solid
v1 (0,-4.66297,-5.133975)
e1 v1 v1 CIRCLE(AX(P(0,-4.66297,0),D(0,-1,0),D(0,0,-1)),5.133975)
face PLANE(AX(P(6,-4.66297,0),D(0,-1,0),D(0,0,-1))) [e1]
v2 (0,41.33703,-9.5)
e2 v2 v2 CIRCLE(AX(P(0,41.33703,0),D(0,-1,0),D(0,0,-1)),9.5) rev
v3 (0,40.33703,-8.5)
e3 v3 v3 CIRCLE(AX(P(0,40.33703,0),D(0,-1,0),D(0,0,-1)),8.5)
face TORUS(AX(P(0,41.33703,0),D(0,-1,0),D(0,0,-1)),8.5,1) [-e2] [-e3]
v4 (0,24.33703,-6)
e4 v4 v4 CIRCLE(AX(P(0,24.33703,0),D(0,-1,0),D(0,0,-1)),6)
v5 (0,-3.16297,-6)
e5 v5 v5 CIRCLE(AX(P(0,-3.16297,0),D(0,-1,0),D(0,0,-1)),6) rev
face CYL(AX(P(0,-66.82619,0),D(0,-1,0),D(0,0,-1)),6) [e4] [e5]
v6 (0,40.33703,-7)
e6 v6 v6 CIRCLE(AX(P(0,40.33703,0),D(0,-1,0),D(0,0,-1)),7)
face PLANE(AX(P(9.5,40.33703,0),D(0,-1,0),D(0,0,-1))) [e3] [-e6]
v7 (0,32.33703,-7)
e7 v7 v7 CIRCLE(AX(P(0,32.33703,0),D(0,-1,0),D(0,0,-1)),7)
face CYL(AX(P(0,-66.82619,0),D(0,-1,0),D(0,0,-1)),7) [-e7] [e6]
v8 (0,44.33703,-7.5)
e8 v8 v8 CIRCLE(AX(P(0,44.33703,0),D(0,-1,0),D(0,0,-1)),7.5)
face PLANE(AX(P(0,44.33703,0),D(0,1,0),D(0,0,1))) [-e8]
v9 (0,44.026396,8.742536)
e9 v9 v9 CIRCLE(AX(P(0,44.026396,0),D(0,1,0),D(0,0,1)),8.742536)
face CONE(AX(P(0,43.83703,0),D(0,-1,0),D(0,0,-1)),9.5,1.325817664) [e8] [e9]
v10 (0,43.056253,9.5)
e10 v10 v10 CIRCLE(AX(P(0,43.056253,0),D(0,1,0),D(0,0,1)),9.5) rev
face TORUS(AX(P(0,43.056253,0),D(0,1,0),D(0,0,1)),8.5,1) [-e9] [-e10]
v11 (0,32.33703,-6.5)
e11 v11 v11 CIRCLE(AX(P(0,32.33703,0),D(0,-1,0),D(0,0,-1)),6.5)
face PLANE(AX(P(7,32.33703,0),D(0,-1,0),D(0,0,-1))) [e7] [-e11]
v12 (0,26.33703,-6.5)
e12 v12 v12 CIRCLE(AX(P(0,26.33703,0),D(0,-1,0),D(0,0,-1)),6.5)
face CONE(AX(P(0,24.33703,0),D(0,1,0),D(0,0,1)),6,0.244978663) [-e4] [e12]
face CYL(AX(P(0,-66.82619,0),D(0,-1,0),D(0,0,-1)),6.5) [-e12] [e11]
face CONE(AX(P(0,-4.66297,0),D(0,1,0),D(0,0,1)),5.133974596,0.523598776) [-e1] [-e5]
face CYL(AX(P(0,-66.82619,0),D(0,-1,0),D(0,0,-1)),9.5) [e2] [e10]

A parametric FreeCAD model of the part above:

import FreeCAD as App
import Part
import Sketcher
from FreeCAD import Vector
Q = App.Units.Quantity


def edges_at(feature, points):
    """Names of the edges that pass closest to the given points."""
    edges = feature.Shape.Edges
    near = lambda p: min(range(len(edges)), key=lambda i: edges[i].distToShape(Part.Vertex(*p))[0])
    return sorted({f"Edge{near(p) + 1}" for p in points})

doc = App.newDocument("Part")
body = doc.addObject("PartDesign::Body", "Body")

# Sketch on XY plane
sketch1 = body.newObject("Sketcher::SketchObject", "Sketch")
sketch1.AttachmentSupport = (doc.getObject("XY_Plane"), [""])
sketch1.MapMode = "FlatFace"
sketch1.addGeometry(Part.LineSegment(Vector(7.5, 44.3, 0), Vector(0, 44.3, 0)), False)
sketch1.addGeometry(Part.LineSegment(Vector(0, 44.3, 0), Vector(0, -4.7, 0)), False)
sketch1.addGeometry(Part.LineSegment(Vector(0, -4.7, 0), Vector(6, -4.7, 0)), False)
sketch1.addGeometry(Part.LineSegment(Vector(6, -4.7, 0), Vector(6, 24.3, 0)), False)
sketch1.addGeometry(Part.LineSegment(Vector(6, 24.3, 0), Vector(6.5, 26.3, 0)), False)
sketch1.addGeometry(Part.LineSegment(Vector(6.5, 26.3, 0), Vector(6.5, 32.3, 0)), False)
sketch1.addGeometry(Part.LineSegment(Vector(6.5, 32.3, 0), Vector(7, 32.3, 0)), False)
sketch1.addGeometry(Part.LineSegment(Vector(7, 32.3, 0), Vector(7, 40.3, 0)), False)
sketch1.addGeometry(Part.LineSegment(Vector(7, 40.3, 0), Vector(9.5, 40.3, 0)), False)
sketch1.addGeometry(Part.LineSegment(Vector(9.5, 40.3, 0), Vector(9.5, 43.8, 0)), False)
sketch1.addGeometry(Part.LineSegment(Vector(9.5, 43.8, 0), Vector(7.5, 44.3, 0)), False)
sketch1.addConstraint(Sketcher.Constraint("Coincident", 0, 2, 1, 1))
sketch1.addConstraint(Sketcher.Constraint("Coincident", 1, 2, 2, 1))
sketch1.addConstraint(Sketcher.Constraint("Coincident", 2, 2, 3, 1))
sketch1.addConstraint(Sketcher.Constraint("Coincident", 3, 2, 4, 1))
sketch1.addConstraint(Sketcher.Constraint("Coincident", 4, 2, 5, 1))
sketch1.addConstraint(Sketcher.Constraint("Coincident", 5, 2, 6, 1))
sketch1.addConstraint(Sketcher.Constraint("Coincident", 6, 2, 7, 1))
sketch1.addConstraint(Sketcher.Constraint("Coincident", 7, 2, 8, 1))
sketch1.addConstraint(Sketcher.Constraint("Coincident", 8, 2, 9, 1))
sketch1.addConstraint(Sketcher.Constraint("Coincident", 9, 2, 10, 1))
sketch1.addConstraint(Sketcher.Constraint("Coincident", 10, 2, 0, 1))
sketch1.addConstraint(Sketcher.Constraint("Horizontal", 0))
sketch1.addConstraint(Sketcher.Constraint("Vertical", 1))
sketch1.addConstraint(Sketcher.Constraint("Horizontal", 2))
sketch1.addConstraint(Sketcher.Constraint("Vertical", 3))
sketch1.addConstraint(Sketcher.Constraint("Vertical", 5))
sketch1.addConstraint(Sketcher.Constraint("Horizontal", 6))
sketch1.addConstraint(Sketcher.Constraint("Vertical", 7))
sketch1.addConstraint(Sketcher.Constraint("Horizontal", 8))
sketch1.addConstraint(Sketcher.Constraint("Vertical", 9))
sketch1.addConstraint(Sketcher.Constraint("PointOnObject", 0, 2, -2))
sketch1.addConstraint(Sketcher.Constraint("Perpendicular", 4, 10))
sketch1.addConstraint(Sketcher.Constraint("Equal", 2, 5))
sketch1.addConstraint(Sketcher.Constraint("Equal", 4, 10))
sketch1.addConstraint(Sketcher.Constraint("DistanceX", 2, 1, 2, 2, Q("6 mm")))
sketch1.addConstraint(Sketcher.Constraint("DistanceY", 1, 2, 1, 1, Q("49 mm")))
sketch1.addConstraint(Sketcher.Constraint("DistanceY", 3, 1, 3, 2, Q("29 mm")))
sketch1.addConstraint(Sketcher.Constraint("DistanceY", 7, 1, 7, 2, Q("8 mm")))
sketch1.addConstraint(Sketcher.Constraint("DistanceX", 0, 2, 0, 1, Q("7.5 mm")))
sketch1.addConstraint(Sketcher.Constraint("DistanceX", 6, 1, 6, 2, Q("0.5 mm")))
sketch1.addConstraint(Sketcher.Constraint("DistanceX", 8, 1, 8, 2, Q("2.5 mm")))
sketch1.addConstraint(Sketcher.Constraint("DistanceY", 9, 1, 9, 2, Q("3.5 mm")))
sketch1.addConstraint(Sketcher.Constraint("DistanceY", -1, 1, 0, 2, Q("44.33703 mm")))
revolution = body.newObject("PartDesign::Revolution", "Revolution")
revolution.Profile = sketch1
revolution.ReferenceAxis = (sketch1, ["V_Axis"])
revolution.Angle = 360
doc.recompute()

fillet = body.newObject("PartDesign::Fillet", "Fillet")
fillet.Base = (revolution, edges_at(revolution, [(0, 43.837, 9.5)]))
fillet.Radius = 1
doc.recompute()

fillet2 = body.newObject("PartDesign::Fillet", "Fillet001")
fillet2.Base = (fillet, edges_at(fillet, [(0, 40.337, 9.5)]))
fillet2.Radius = 1
doc.recompute()

chamfer = body.newObject("PartDesign::Chamfer", "Chamfer")
chamfer.Base = (fillet2, edges_at(fillet2, [(0, -4.663, 6)]))
chamfer.ChamferType = "Two distances"
chamfer.Size = 1.5
chamfer.Size2 = 0.866025

doc.recompute()
